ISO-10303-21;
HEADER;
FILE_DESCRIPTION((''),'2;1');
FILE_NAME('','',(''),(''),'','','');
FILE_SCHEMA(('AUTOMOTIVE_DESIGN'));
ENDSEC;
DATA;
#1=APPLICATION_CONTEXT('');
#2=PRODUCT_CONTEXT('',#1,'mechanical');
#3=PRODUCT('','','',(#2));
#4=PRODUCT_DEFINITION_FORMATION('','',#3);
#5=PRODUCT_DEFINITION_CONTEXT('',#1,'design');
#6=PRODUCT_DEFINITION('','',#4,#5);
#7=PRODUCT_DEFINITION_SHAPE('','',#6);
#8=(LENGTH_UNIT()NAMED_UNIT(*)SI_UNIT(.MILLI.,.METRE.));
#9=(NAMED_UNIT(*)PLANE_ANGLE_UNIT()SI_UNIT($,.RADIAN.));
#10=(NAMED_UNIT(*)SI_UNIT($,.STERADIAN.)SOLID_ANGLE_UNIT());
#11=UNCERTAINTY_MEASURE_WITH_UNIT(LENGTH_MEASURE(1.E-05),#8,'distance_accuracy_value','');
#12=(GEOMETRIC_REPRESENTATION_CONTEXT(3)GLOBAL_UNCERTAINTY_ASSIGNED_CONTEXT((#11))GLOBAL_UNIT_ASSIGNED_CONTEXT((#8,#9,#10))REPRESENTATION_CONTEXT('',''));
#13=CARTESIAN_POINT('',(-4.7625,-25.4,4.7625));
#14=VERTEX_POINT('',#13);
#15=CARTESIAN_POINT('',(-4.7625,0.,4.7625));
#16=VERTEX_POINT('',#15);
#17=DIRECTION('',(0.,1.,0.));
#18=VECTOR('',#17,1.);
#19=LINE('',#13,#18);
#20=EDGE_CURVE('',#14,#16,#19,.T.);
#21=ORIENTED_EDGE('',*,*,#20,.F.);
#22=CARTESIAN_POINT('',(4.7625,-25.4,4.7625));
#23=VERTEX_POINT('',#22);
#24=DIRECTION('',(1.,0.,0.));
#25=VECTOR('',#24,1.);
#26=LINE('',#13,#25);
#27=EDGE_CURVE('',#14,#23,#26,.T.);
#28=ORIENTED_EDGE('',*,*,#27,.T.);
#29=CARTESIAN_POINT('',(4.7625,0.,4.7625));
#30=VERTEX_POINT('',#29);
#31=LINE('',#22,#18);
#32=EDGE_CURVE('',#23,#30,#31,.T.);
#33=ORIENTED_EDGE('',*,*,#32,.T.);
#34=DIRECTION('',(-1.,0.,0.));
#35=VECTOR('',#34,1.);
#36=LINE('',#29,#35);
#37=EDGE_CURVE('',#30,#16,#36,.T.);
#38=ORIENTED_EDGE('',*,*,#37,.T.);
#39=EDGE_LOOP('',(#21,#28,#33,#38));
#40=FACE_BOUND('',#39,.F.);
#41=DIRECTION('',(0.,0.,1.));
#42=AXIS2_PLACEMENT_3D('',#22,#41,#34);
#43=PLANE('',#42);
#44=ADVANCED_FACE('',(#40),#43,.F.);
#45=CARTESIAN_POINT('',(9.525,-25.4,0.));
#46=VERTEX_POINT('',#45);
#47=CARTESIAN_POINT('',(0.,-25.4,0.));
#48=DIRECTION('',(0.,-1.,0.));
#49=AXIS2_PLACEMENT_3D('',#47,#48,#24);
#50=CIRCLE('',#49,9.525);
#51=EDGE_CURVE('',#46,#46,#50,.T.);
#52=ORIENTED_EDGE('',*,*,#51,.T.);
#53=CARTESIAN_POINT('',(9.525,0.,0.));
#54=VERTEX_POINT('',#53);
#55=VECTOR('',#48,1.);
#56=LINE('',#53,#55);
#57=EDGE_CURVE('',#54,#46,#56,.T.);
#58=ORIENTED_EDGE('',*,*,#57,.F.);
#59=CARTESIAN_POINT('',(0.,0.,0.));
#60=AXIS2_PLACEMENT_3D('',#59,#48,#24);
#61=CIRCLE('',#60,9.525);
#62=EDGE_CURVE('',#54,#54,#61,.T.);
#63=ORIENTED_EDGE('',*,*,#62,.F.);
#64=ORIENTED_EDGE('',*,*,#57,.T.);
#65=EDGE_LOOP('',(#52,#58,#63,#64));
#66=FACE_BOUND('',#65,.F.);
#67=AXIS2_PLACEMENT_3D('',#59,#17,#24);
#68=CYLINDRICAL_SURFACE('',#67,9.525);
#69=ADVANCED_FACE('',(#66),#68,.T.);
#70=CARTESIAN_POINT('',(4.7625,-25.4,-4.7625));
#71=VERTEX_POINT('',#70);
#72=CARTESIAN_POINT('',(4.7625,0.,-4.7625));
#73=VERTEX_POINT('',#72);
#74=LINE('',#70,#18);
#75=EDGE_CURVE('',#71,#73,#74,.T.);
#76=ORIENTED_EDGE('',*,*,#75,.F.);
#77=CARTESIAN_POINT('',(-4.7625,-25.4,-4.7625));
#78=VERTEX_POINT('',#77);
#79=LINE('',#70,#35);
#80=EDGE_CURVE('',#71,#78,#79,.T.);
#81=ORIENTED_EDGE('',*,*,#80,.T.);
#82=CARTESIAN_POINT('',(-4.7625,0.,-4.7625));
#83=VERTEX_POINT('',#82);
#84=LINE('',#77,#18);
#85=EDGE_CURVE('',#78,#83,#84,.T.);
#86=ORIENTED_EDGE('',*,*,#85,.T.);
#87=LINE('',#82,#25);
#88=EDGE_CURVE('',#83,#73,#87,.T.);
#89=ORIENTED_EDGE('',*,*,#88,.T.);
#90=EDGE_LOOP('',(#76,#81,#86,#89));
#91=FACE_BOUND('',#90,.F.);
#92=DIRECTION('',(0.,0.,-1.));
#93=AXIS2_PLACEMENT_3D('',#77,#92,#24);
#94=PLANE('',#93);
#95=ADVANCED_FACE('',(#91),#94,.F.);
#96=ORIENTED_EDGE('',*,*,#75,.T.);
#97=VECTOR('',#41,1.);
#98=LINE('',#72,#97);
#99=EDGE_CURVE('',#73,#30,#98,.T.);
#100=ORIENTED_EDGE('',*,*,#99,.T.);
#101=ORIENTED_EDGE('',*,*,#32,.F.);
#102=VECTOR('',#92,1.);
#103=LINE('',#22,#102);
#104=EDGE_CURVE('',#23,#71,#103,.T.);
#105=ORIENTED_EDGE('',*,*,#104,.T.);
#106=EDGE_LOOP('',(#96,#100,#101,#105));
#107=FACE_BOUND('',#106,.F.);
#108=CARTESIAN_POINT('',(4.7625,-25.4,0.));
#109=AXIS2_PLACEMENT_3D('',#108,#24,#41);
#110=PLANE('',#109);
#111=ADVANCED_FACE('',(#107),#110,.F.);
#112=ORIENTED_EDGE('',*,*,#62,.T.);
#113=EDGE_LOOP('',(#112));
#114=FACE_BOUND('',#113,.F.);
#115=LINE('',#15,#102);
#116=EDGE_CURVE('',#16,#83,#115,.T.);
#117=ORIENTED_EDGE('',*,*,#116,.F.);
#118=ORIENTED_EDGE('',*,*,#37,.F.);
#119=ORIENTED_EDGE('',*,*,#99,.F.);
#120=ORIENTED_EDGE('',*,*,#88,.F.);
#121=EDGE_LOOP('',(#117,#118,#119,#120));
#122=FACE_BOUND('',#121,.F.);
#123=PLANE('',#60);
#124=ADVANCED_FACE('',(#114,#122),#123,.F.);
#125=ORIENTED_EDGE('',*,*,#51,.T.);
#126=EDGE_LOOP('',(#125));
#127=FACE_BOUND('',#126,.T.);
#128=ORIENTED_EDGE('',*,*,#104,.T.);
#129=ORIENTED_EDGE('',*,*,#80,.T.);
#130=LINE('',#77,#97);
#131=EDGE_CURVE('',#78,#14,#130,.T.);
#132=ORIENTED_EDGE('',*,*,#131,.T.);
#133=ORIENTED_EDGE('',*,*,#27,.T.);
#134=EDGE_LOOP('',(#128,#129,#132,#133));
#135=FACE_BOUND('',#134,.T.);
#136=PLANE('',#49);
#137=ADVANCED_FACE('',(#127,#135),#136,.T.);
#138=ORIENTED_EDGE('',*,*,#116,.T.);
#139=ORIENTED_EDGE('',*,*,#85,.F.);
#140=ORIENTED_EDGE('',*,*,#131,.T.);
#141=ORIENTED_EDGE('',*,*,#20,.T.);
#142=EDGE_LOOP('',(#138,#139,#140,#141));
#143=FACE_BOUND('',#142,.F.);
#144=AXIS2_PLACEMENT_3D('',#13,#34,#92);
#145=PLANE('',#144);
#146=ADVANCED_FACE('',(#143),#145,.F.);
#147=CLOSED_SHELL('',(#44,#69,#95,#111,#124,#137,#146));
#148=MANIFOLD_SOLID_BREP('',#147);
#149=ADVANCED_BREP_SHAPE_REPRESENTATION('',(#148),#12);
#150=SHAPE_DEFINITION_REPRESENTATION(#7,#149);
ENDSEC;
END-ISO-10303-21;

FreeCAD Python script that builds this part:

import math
import FreeCAD as App
import Part
import Sketcher
Q = App.Units.Quantity

doc = App.newDocument("Part")
params = doc.addObject("Spreadsheet::Sheet", "Params")
for row, (alias, value) in enumerate([
    ("sketch1_diameter", "0.75 in"),
    ("pad1_length", "1 in"),
    ("sketch2_radius", "0.1875 in"),
    ("sketch3_radius", "0.1875 in"),
    ("pocket2_length", "1 in"),
], start=1):
    params.set(f"A{row}", alias)
    params.set(f"B{row}", "=" + value)
    params.setAlias(f"B{row}", alias)

body = doc.addObject("PartDesign::Body", "Body")

sketch1 = body.newObject("Sketcher::SketchObject", "Sketch")
sketch1.AttachmentSupport = (doc.getObject("XZ_Plane"), [""])
sketch1.MapMode = "FlatFace"
sketch1.addGeometry(Part.Circle(App.Vector(0, 0, 0), App.Vector(0, 0, 1), 10), False)
sketch1.addConstraint(Sketcher.Constraint("Coincident", 0, 3, -1, 1))
sketch1.addConstraint(Sketcher.Constraint("Diameter", 0, Q("0.75 in")))
sketch1.setExpression("Constraints[1]", "Params.sketch1_diameter")
pad1 = body.newObject("PartDesign::Pad", "Pad")
pad1.Profile = sketch1
pad1.setExpression("Length", "Params.pad1_length")

sketch2 = body.newObject("Sketcher::SketchObject", "Sketch001")
sketch2.AttachmentSupport = (doc.getObject("XZ_Plane"), [""])
sketch2.MapMode = "FlatFace"
sketch2.AttachmentOffset = App.Placement(App.Vector(0, 0, 1 * 25.4), App.Rotation())
sketch2.addGeometry(Part.ArcOfCircle(Part.Circle(App.Vector(0, 0, 0), App.Vector(0, 0, 1), 4.8), math.radians(0), math.radians(90)), False)
sketch2.addGeometry(Part.ArcOfCircle(Part.Circle(App.Vector(0, 0, 0), App.Vector(0, 0, 1), 4.8), math.radians(90), math.radians(180)), False)
sketch2.addGeometry(Part.ArcOfCircle(Part.Circle(App.Vector(0, 0, 0), App.Vector(0, 0, 1), 4.8), math.radians(-180), math.radians(-90)), False)
sketch2.addGeometry(Part.ArcOfCircle(Part.Circle(App.Vector(0, 0, 0), App.Vector(0, 0, 1), 4.8), math.radians(-90), math.radians(0)), False)
sketch2.addConstraint(Sketcher.Constraint("Tangent", 0, 2, 1, 1))
sketch2.addConstraint(Sketcher.Constraint("Tangent", 1, 2, 2, 1))
sketch2.addConstraint(Sketcher.Constraint("Tangent", 2, 2, 3, 1))
sketch2.addConstraint(Sketcher.Constraint("Tangent", 3, 2, 0, 1))
sketch2.addConstraint(Sketcher.Constraint("Coincident", 0, 3, -1, 1))
sketch2.addConstraint(Sketcher.Constraint("Equal", 0, 1))
sketch2.addConstraint(Sketcher.Constraint("PointOnObject", 0, 2, -2))
sketch2.addConstraint(Sketcher.Constraint("PointOnObject", 1, 2, -1))
sketch2.addConstraint(Sketcher.Constraint("PointOnObject", 2, 2, -2))
sketch2.addConstraint(Sketcher.Constraint("PointOnObject", 3, 2, -1))
sketch2.addConstraint(Sketcher.Constraint("Radius", 0, Q("0.1875 in")))
sketch2.setExpression("Constraints[10]", "Params.sketch2_radius")
pocket1 = body.newObject("PartDesign::Pocket", "Pocket")
pocket1.Profile = sketch2
pocket1.Type = "ThroughAll"

sketch3 = body.newObject("Sketcher::SketchObject", "Sketch002")
sketch3.AttachmentSupport = (doc.getObject("XZ_Plane"), [""])
sketch3.MapMode = "FlatFace"
sketch3.AttachmentOffset = App.Placement(App.Vector(0, 0, 1 * 25.4), App.Rotation())
sketch3.addGeometry(Part.LineSegment(App.Vector(4.8, 0, 0), App.Vector(4.8, 4.8, 0)), False)
sketch3.addGeometry(Part.LineSegment(App.Vector(4.8, 4.8, 0), App.Vector(0, 4.8, 0)), False)
sketch3.addGeometry(Part.ArcOfCircle(Part.Circle(App.Vector(0, 0, 0), App.Vector(0, 0, 1), 4.8), math.radians(0), math.radians(90)), False)
sketch3.addGeometry(Part.ArcOfCircle(Part.Circle(App.Vector(0, 0, 0), App.Vector(0, 0, 1), 4.8), math.radians(90), math.radians(180)), False)
sketch3.addGeometry(Part.LineSegment(App.Vector(0, 4.8, 0), App.Vector(-4.8, 4.8, 0)), False)
sketch3.addGeometry(Part.LineSegment(App.Vector(-4.8, 4.8, 0), App.Vector(-4.8, 0, 0)), False)
sketch3.addGeometry(Part.LineSegment(App.Vector(4.8, -4.8, 0), App.Vector(4.8, 0, 0)), False)
sketch3.addGeometry(Part.ArcOfCircle(Part.Circle(App.Vector(0, 0, 0), App.Vector(0, 0, 1), 4.8), math.radians(-90), math.radians(0)), False)
sketch3.addGeometry(Part.LineSegment(App.Vector(0, -4.8, 0), App.Vector(4.8, -4.8, 0)), False)
sketch3.addGeometry(Part.ArcOfCircle(Part.Circle(App.Vector(0, 0, 0), App.Vector(0, 0, 1), 4.8), math.radians(-180), math.radians(-90)), False)
sketch3.addGeometry(Part.LineSegment(App.Vector(-4.8, 0, 0), App.Vector(-4.8, -4.8, 0)), False)
sketch3.addGeometry(Part.LineSegment(App.Vector(-4.8, -4.8, 0), App.Vector(0, -4.8, 0)), False)
sketch3.addConstraint(Sketcher.Constraint("Coincident", 0, 2, 1, 1))
sketch3.addConstraint(Sketcher.Constraint("Tangent", 1, 2, 2, 2))
sketch3.addConstraint(Sketcher.Constraint("Tangent", 2, 1, 0, 1))
sketch3.addConstraint(Sketcher.Constraint("Tangent", 3, 1, 4, 1))
sketch3.addConstraint(Sketcher.Constraint("Coincident", 4, 2, 5, 1))
sketch3.addConstraint(Sketcher.Constraint("Tangent", 5, 2, 3, 2))
sketch3.addConstraint(Sketcher.Constraint("Tangent", 6, 2, 7, 2))
sketch3.addConstraint(Sketcher.Constraint("Tangent", 7, 1, 8, 1))
sketch3.addConstraint(Sketcher.Constraint("Coincident", 8, 2, 6, 1))
sketch3.addConstraint(Sketcher.Constraint("Tangent", 9, 1, 10, 1))
sketch3.addConstraint(Sketcher.Constraint("Coincident", 10, 2, 11, 1))
sketch3.addConstraint(Sketcher.Constraint("Tangent", 11, 2, 9, 2))
sketch3.addConstraint(Sketcher.Constraint("Vertical", 0))
sketch3.addConstraint(Sketcher.Constraint("Horizontal", 1))
sketch3.addConstraint(Sketcher.Constraint("Horizontal", 4))
sketch3.addConstraint(Sketcher.Constraint("Vertical", 5))
sketch3.addConstraint(Sketcher.Constraint("Vertical", 6))
sketch3.addConstraint(Sketcher.Constraint("Horizontal", 8))
sketch3.addConstraint(Sketcher.Constraint("Vertical", 10))
sketch3.addConstraint(Sketcher.Constraint("Horizontal", 11))
sketch3.addConstraint(Sketcher.Constraint("Coincident", 2, 3, -1, 1))
sketch3.addConstraint(Sketcher.Constraint("Coincident", 3, 3, -1, 1))
sketch3.addConstraint(Sketcher.Constraint("Coincident", 7, 3, -1, 1))
sketch3.addConstraint(Sketcher.Constraint("Coincident", 9, 3, -1, 1))
sketch3.addConstraint(Sketcher.Constraint("Equal", 2, 3))
sketch3.addConstraint(Sketcher.Constraint("Equal", 3, 7))
sketch3.addConstraint(Sketcher.Constraint("Equal", 7, 9))
sketch3.addConstraint(Sketcher.Constraint("Radius", 2, Q("0.1875 in")))
sketch3.setExpression("Constraints[27]", "Params.sketch3_radius")
pocket2 = body.newObject("PartDesign::Pocket", "Pocket001")
pocket2.Profile = sketch3
pocket2.setExpression("Length", "Params.pocket2_length")

doc.recompute()
